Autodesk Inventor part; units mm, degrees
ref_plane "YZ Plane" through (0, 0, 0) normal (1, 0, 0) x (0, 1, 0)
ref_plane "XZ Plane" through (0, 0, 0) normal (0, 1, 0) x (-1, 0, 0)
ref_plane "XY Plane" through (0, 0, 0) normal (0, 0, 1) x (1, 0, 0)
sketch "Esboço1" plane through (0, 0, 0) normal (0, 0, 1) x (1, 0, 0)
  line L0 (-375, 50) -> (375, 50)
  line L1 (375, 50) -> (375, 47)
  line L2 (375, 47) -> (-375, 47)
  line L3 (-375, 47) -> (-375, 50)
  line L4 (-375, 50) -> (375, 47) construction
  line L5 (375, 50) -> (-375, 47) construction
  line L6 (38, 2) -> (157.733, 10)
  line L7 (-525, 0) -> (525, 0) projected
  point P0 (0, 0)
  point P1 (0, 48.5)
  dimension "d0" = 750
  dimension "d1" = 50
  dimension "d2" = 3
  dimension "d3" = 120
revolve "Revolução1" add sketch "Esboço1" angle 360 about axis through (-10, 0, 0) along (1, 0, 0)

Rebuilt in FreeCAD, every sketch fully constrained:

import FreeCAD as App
import Part
import Sketcher

V = App.Vector


def add_polygon(sketch, points):
    """Adds a closed chain of lines whose ends are joined by coincident constraints."""
    first, n = sketch.GeometryCount, len(points)
    for a, b in zip(points, points[1:] + points[:1]):
        sketch.addGeometry(Part.LineSegment(App.Vector(*a, 0), App.Vector(*b, 0)), False)
    for i in range(n):
        sketch.addConstraint(Sketcher.Constraint("Coincident", first + i, 2, first + (i + 1) % n, 1))

doc = App.newDocument("Part")
body = doc.addObject("PartDesign::Body", "Body")

# Sketch on XY plane
sketch1 = body.newObject("Sketcher::SketchObject", "Sketch")
sketch1.AttachmentSupport = (doc.getObject("XY_Plane"), [""])
sketch1.MapMode = "FlatFace"
add_polygon(sketch1, [(375, 50), (-375, 50), (-375, 47), (375, 47)])  # lines 0-3
sketch1.addConstraint([
    Sketcher.Constraint("Horizontal", 0),
    Sketcher.Constraint("Vertical", 1),
    Sketcher.Constraint("Horizontal", 2),
    Sketcher.Constraint("Vertical", 3),
    Sketcher.Constraint("DistanceX", 0, 2, 0, 1, 750.0),
    Sketcher.Constraint("DistanceY", 1, 2, 1, 1, 3.0),
    Sketcher.Constraint("DistanceY", -1, 1, 0, 2, 50.0),
    Sketcher.Constraint("DistanceX", 0, 2, -1, 1, 375.0),
])
revolution = body.newObject("PartDesign::Revolution", "Revolution")
revolution.Profile = sketch1
revolution.ReferenceAxis = (sketch1, ["H_Axis"])
revolution.Angle = 360

doc.recompute()
